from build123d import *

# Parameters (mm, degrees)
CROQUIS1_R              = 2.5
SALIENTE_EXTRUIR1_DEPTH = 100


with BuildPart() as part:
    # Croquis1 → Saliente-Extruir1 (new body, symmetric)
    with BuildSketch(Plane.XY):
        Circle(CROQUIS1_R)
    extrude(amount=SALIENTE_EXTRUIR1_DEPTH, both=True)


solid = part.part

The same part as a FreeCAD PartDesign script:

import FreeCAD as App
import Part
import Sketcher

V = App.Vector
Q = App.Units.Quantity

doc = App.newDocument("Part")
body = doc.addObject("PartDesign::Body", "Body")

sketch1 = body.newObject("Sketcher::SketchObject", "Sketch")
sketch1.AttachmentSupport = (doc.getObject("XY_Plane"), [""])
sketch1.MapMode = "FlatFace"
sketch1.addGeometry(Part.Circle(V(0, 0, 0), V(0, 0, 1), 2.5), False)
sketch1.addConstraint([
    Sketcher.Constraint("Coincident", 0, 3, -1, 1),
    Sketcher.Constraint("Diameter", 0, Q("5 mm")),
])
pad1 = body.newObject("PartDesign::Pad", "Pad")
pad1.Profile = sketch1
pad1.Length = 200
pad1.Midplane = True

doc.recompute()
